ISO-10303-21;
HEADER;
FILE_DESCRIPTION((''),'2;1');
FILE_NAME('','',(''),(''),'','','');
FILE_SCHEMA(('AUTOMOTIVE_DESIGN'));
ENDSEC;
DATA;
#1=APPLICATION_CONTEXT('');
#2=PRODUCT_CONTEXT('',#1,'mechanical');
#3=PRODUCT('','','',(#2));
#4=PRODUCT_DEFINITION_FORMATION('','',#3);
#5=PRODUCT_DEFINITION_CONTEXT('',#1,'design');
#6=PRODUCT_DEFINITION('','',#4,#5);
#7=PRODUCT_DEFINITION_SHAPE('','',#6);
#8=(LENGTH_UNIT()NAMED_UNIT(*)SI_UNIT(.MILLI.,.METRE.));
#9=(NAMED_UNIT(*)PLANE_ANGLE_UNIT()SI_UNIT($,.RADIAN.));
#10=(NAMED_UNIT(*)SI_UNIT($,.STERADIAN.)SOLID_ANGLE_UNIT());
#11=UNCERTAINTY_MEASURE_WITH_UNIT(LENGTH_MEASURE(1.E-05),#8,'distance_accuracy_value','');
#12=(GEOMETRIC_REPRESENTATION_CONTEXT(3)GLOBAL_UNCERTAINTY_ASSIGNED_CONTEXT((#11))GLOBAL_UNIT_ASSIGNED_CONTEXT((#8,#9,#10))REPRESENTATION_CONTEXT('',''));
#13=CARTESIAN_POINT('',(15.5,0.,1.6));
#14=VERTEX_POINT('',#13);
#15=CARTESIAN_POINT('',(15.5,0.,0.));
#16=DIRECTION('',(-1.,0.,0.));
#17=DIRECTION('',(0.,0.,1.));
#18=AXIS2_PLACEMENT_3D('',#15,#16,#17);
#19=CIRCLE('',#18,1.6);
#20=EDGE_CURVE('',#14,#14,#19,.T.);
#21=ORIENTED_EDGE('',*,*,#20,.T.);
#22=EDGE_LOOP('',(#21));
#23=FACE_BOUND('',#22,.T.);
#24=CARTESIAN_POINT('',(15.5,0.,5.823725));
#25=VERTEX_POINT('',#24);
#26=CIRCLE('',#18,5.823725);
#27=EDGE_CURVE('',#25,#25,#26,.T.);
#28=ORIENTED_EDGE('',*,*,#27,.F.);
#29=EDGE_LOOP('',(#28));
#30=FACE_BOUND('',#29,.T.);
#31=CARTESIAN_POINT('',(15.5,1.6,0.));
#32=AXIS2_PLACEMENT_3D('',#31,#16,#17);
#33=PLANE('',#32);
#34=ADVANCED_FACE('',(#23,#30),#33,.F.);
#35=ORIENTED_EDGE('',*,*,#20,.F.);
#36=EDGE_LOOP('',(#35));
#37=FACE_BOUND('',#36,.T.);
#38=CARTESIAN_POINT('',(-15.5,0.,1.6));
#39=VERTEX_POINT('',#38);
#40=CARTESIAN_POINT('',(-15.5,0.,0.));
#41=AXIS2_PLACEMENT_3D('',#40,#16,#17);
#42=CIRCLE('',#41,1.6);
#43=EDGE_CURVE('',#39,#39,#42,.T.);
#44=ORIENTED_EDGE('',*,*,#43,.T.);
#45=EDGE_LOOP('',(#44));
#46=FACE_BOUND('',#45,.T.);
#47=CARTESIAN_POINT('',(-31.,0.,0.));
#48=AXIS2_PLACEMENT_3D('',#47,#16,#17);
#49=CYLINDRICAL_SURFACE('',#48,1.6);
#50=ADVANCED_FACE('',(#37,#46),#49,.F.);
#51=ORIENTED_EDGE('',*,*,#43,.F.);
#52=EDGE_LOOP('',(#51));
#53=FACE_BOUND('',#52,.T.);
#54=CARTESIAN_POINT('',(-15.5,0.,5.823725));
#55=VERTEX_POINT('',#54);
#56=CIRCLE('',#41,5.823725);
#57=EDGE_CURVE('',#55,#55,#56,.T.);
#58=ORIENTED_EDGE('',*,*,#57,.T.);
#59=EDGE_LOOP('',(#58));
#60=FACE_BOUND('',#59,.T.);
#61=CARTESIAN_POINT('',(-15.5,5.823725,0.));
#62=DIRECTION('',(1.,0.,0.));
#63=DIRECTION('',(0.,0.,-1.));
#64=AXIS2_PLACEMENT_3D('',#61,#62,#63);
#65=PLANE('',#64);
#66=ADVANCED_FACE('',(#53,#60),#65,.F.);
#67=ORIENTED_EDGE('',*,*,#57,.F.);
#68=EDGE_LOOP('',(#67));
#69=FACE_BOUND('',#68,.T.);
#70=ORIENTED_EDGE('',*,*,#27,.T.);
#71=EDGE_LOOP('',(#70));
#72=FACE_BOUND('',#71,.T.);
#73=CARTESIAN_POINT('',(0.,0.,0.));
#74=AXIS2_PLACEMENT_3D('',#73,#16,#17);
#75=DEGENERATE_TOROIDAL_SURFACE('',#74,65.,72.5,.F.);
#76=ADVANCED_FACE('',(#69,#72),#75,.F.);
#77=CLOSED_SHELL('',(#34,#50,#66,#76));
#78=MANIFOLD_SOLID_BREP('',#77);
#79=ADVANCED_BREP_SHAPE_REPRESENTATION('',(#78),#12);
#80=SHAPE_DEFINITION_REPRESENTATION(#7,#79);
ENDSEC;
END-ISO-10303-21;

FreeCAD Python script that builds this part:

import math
import FreeCAD as App
import Part
import Sketcher

doc = App.newDocument("Part")
params = doc.addObject("Spreadsheet::Sheet", "Params")
for row, (alias, value) in enumerate([
    ("sketch1_radius", "72.5 mm"),
    ("sketch1_width", "31 mm"),
    ("revolution_angle", "360 deg"),
], start=1):
    params.set(f"A{row}", alias)
    params.set(f"B{row}", "=" + value)
    params.setAlias(f"B{row}", alias)

body = doc.addObject("PartDesign::Body", "Body")

sketch1 = body.newObject("Sketcher::SketchObject", "Sketch")
sketch1.AttachmentSupport = (doc.getObject("XY_Plane"), [""])
sketch1.MapMode = "FlatFace"
sketch1.addGeometry(Part.LineSegment(App.Vector(-15.5, 1.6, 0), App.Vector(15.5, 1.6, 0)), False)
sketch1.addGeometry(Part.LineSegment(App.Vector(15.5, 1.6, 0), App.Vector(15.5, 5.823725, 0)), False)
sketch1.addGeometry(Part.ArcOfCircle(Part.Circle(App.Vector(0, -65, 0), App.Vector(0, 0, 1), 72.5), math.radians(77.655269), math.radians(102.344731)), False)
sketch1.addGeometry(Part.LineSegment(App.Vector(-15.5, 5.823725, 0), App.Vector(-15.5, 1.6, 0)), False)
sketch1.addConstraint(Sketcher.Constraint("Coincident", 0, 2, 1, 1))
sketch1.addConstraint(Sketcher.Constraint("Coincident", 1, 2, 2, 1))
sketch1.addConstraint(Sketcher.Constraint("Coincident", 2, 2, 3, 1))
sketch1.addConstraint(Sketcher.Constraint("Coincident", 3, 2, 0, 1))
sketch1.addConstraint(Sketcher.Constraint("Horizontal", 0))
sketch1.addConstraint(Sketcher.Constraint("Vertical", 1))
sketch1.addConstraint(Sketcher.Constraint("Vertical", 3))
sketch1.addConstraint(Sketcher.Constraint("Symmetric", 1, 2, 2, 2, -2))
sketch1.addConstraint(Sketcher.Constraint("Radius", 2, 72.5))
sketch1.addConstraint(Sketcher.Constraint("DistanceX", 0, 1, 0, 2, 31.0))
sketch1.addConstraint(Sketcher.Constraint("DistanceY", 2, 3, -1, 1, 65.0))
sketch1.addConstraint(Sketcher.Constraint("DistanceY", -1, 1, 0, 2, 1.6))
sketch1.setExpression("Constraints[8]", "Params.sketch1_radius")
sketch1.setExpression("Constraints[9]", "Params.sketch1_width")
revolution = body.newObject("PartDesign::Revolution", "Revolution")
revolution.Profile = sketch1
revolution.ReferenceAxis = (sketch1, ["H_Axis"])
revolution.setExpression("Angle", "Params.revolution_angle")

doc.recompute()
